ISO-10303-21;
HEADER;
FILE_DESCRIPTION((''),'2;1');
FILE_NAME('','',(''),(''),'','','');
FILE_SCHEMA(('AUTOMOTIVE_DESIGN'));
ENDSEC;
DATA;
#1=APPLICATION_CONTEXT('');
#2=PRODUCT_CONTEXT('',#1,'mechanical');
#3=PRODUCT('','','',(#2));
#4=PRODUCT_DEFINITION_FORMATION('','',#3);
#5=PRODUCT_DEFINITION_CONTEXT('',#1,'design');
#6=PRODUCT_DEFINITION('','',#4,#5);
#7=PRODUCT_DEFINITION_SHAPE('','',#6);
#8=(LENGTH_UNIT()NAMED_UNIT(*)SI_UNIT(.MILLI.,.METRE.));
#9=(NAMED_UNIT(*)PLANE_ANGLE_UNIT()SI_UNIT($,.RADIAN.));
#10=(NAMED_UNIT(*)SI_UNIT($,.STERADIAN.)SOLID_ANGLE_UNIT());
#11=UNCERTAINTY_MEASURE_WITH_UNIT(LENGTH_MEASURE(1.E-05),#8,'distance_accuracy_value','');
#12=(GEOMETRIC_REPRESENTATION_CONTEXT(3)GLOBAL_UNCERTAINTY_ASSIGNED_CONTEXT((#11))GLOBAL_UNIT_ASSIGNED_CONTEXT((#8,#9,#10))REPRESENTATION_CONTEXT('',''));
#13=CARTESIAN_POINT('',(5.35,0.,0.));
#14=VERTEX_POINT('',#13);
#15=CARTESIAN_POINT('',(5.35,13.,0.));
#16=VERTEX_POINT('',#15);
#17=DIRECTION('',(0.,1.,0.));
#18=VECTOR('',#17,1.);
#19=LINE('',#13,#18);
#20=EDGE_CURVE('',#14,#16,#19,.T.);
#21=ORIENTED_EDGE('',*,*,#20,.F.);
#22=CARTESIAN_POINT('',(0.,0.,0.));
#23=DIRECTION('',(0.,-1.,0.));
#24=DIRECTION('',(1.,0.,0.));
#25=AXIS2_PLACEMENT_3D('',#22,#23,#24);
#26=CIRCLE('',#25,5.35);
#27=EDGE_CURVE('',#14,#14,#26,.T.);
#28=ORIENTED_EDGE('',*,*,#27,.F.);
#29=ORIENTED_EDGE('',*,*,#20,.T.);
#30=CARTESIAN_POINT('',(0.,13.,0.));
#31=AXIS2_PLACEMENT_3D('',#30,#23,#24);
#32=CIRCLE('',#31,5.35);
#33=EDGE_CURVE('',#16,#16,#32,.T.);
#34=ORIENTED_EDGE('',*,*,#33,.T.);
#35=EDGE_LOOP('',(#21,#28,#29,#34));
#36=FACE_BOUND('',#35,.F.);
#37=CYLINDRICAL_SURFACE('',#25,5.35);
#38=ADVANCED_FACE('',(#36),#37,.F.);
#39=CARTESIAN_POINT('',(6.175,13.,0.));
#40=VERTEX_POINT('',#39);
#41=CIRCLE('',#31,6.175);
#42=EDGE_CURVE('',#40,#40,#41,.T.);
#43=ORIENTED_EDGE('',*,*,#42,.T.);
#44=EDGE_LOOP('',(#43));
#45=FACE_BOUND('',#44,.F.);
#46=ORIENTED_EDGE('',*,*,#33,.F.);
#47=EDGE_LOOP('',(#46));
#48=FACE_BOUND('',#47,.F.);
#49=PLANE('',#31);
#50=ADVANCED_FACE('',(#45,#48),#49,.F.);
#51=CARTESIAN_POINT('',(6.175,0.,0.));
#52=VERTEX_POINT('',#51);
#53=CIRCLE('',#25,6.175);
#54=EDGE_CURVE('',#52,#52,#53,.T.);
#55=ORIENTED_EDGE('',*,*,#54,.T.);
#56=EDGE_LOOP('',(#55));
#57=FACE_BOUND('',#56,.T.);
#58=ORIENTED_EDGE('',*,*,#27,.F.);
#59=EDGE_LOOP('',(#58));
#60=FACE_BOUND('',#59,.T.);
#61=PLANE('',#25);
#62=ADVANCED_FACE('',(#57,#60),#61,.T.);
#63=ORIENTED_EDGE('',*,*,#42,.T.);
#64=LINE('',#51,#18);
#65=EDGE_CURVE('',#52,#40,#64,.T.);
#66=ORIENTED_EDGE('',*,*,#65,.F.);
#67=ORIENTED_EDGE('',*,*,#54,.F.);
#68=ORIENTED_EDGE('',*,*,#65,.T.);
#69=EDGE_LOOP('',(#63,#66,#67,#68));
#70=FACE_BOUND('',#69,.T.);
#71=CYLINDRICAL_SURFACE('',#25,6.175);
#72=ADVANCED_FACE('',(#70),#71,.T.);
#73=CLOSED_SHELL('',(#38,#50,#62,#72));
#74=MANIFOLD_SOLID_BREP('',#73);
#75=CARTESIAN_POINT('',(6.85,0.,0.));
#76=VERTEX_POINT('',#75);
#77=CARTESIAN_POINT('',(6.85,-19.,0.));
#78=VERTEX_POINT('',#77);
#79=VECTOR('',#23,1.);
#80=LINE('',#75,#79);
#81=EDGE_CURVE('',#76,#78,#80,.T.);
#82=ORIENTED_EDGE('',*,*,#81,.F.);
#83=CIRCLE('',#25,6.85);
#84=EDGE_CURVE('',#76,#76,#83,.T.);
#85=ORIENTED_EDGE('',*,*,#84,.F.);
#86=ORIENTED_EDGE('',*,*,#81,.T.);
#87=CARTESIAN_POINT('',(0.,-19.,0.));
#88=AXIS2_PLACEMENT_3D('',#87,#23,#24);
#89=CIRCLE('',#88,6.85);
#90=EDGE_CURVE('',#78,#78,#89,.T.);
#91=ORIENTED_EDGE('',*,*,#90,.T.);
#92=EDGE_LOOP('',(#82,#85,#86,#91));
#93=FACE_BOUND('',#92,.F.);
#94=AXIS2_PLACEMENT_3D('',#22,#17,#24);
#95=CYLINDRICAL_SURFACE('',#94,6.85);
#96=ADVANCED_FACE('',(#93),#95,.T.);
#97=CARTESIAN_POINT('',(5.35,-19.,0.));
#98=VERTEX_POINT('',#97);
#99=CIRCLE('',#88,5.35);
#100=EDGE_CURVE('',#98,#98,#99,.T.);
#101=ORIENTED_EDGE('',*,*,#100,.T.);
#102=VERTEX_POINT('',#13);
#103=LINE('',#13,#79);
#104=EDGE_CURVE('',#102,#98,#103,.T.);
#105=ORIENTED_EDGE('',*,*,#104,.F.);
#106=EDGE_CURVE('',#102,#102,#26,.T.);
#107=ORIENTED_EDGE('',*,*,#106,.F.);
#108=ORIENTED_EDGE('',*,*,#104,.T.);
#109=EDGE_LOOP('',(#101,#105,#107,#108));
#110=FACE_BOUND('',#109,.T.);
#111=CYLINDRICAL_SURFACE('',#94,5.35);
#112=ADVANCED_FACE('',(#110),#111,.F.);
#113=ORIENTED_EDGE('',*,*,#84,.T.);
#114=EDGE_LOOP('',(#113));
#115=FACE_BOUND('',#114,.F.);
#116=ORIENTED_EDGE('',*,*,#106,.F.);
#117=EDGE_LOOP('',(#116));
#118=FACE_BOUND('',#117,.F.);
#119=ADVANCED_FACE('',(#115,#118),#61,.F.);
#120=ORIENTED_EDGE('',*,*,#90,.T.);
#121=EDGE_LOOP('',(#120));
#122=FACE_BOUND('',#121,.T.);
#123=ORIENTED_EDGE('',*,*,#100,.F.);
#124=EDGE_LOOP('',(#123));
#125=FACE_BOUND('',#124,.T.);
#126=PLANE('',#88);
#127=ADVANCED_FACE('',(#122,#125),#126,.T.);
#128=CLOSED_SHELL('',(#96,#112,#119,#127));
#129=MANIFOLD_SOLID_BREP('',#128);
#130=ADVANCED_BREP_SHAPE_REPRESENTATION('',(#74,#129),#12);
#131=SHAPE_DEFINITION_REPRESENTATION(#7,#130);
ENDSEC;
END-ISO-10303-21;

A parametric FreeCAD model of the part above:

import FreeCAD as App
import Part
import Sketcher
from FreeCAD import Vector

doc = App.newDocument("Part")
body = doc.addObject("PartDesign::Body", "Body")

# Sketch on XZ plane
sketch1 = body.newObject("Sketcher::SketchObject", "Sketch")
sketch1.AttachmentSupport = (doc.getObject("XZ_Plane"), [""])
sketch1.MapMode = "FlatFace"
sketch1.addGeometry([
    Part.Circle(Vector(0, 0, 0), Vector(0, 0, 1), 6.85),
    Part.Circle(Vector(0, 0, 0), Vector(0, 0, 1), 5.35),
], False)
sketch1.addConstraint([
    Sketcher.Constraint("Coincident", 0, 3, -1, 1),
    Sketcher.Constraint("Coincident", 1, 3, -1, 1),
    Sketcher.Constraint("Diameter", 0, 13.7),
    Sketcher.Constraint("Diameter", 1, 10.7),
])
pad1 = body.newObject("PartDesign::Pad", "Pad")
pad1.Profile = sketch1
pad1.Length = 19
body2 = doc.addObject("PartDesign::Body", "Body001")

# Sketch on XZ plane
sketch2 = body2.newObject("Sketcher::SketchObject", "Sketch001")
sketch2.AttachmentSupport = (doc.getObject("XZ_Plane001"), [""])
sketch2.MapMode = "FlatFace"
sketch2.addGeometry([
    Part.Circle(Vector(0, 0, 0), Vector(0, 0, 1), 6.175),
    Part.Circle(Vector(0, 0, 0), Vector(0, 0, 1), 5.35),
], False)
sketch2.addConstraint([
    Sketcher.Constraint("Coincident", 0, 3, -1, 1),
    Sketcher.Constraint("Coincident", 1, 3, -1, 1),
    Sketcher.Constraint("Diameter", 1, 10.7),
    Sketcher.Constraint("Diameter", 0, 12.35),
])
pad2 = body2.newObject("PartDesign::Pad", "Pad001")
pad2.Profile = sketch2
pad2.Length = 13
pad2.Reversed = True

doc.recompute()
